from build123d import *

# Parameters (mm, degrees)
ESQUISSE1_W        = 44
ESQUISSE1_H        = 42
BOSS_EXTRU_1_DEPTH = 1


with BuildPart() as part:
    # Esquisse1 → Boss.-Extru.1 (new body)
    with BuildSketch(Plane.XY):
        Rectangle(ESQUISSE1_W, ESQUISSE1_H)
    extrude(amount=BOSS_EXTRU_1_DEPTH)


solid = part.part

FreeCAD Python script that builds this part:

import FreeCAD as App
import Part
import Sketcher

V = App.Vector

doc = App.newDocument("Part")
body = doc.addObject("PartDesign::Body", "Body")

sketch1 = body.newObject("Sketcher::SketchObject", "Sketch")
sketch1.AttachmentSupport = (doc.getObject("XY_Plane"), [""])
sketch1.MapMode = "FlatFace"
sketch1.addGeometry(Part.LineSegment(V(-22, 21, 0), V(-22, -21, 0)), False)
sketch1.addGeometry(Part.LineSegment(V(-22, -21, 0), V(22, -21, 0)), False)
sketch1.addGeometry(Part.LineSegment(V(22, -21, 0), V(22, 21, 0)), False)
sketch1.addGeometry(Part.LineSegment(V(22, 21, 0), V(-22, 21, 0)), False)
sketch1.addConstraint(Sketcher.Constraint("Coincident", 0, 2, 1, 1))
sketch1.addConstraint(Sketcher.Constraint("Coincident", 1, 2, 2, 1))
sketch1.addConstraint(Sketcher.Constraint("Coincident", 2, 2, 3, 1))
sketch1.addConstraint(Sketcher.Constraint("Coincident", 3, 2, 0, 1))
sketch1.addConstraint(Sketcher.Constraint("Vertical", 0))
sketch1.addConstraint(Sketcher.Constraint("Horizontal", 1))
sketch1.addConstraint(Sketcher.Constraint("Vertical", 2))
sketch1.addConstraint(Sketcher.Constraint("Horizontal", 3))
sketch1.addConstraint(Sketcher.Constraint("Symmetric", 0, 2, 2, 2, -1, 1))
sketch1.addConstraint(Sketcher.Constraint("DistanceX", 1, 1, 1, 2, 44.0))
sketch1.addConstraint(Sketcher.Constraint("DistanceY", 0, 2, 0, 1, 42.0))
pad1 = body.newObject("PartDesign::Pad", "Pad")
pad1.Profile = sketch1
pad1.Length = 1

doc.recompute()
